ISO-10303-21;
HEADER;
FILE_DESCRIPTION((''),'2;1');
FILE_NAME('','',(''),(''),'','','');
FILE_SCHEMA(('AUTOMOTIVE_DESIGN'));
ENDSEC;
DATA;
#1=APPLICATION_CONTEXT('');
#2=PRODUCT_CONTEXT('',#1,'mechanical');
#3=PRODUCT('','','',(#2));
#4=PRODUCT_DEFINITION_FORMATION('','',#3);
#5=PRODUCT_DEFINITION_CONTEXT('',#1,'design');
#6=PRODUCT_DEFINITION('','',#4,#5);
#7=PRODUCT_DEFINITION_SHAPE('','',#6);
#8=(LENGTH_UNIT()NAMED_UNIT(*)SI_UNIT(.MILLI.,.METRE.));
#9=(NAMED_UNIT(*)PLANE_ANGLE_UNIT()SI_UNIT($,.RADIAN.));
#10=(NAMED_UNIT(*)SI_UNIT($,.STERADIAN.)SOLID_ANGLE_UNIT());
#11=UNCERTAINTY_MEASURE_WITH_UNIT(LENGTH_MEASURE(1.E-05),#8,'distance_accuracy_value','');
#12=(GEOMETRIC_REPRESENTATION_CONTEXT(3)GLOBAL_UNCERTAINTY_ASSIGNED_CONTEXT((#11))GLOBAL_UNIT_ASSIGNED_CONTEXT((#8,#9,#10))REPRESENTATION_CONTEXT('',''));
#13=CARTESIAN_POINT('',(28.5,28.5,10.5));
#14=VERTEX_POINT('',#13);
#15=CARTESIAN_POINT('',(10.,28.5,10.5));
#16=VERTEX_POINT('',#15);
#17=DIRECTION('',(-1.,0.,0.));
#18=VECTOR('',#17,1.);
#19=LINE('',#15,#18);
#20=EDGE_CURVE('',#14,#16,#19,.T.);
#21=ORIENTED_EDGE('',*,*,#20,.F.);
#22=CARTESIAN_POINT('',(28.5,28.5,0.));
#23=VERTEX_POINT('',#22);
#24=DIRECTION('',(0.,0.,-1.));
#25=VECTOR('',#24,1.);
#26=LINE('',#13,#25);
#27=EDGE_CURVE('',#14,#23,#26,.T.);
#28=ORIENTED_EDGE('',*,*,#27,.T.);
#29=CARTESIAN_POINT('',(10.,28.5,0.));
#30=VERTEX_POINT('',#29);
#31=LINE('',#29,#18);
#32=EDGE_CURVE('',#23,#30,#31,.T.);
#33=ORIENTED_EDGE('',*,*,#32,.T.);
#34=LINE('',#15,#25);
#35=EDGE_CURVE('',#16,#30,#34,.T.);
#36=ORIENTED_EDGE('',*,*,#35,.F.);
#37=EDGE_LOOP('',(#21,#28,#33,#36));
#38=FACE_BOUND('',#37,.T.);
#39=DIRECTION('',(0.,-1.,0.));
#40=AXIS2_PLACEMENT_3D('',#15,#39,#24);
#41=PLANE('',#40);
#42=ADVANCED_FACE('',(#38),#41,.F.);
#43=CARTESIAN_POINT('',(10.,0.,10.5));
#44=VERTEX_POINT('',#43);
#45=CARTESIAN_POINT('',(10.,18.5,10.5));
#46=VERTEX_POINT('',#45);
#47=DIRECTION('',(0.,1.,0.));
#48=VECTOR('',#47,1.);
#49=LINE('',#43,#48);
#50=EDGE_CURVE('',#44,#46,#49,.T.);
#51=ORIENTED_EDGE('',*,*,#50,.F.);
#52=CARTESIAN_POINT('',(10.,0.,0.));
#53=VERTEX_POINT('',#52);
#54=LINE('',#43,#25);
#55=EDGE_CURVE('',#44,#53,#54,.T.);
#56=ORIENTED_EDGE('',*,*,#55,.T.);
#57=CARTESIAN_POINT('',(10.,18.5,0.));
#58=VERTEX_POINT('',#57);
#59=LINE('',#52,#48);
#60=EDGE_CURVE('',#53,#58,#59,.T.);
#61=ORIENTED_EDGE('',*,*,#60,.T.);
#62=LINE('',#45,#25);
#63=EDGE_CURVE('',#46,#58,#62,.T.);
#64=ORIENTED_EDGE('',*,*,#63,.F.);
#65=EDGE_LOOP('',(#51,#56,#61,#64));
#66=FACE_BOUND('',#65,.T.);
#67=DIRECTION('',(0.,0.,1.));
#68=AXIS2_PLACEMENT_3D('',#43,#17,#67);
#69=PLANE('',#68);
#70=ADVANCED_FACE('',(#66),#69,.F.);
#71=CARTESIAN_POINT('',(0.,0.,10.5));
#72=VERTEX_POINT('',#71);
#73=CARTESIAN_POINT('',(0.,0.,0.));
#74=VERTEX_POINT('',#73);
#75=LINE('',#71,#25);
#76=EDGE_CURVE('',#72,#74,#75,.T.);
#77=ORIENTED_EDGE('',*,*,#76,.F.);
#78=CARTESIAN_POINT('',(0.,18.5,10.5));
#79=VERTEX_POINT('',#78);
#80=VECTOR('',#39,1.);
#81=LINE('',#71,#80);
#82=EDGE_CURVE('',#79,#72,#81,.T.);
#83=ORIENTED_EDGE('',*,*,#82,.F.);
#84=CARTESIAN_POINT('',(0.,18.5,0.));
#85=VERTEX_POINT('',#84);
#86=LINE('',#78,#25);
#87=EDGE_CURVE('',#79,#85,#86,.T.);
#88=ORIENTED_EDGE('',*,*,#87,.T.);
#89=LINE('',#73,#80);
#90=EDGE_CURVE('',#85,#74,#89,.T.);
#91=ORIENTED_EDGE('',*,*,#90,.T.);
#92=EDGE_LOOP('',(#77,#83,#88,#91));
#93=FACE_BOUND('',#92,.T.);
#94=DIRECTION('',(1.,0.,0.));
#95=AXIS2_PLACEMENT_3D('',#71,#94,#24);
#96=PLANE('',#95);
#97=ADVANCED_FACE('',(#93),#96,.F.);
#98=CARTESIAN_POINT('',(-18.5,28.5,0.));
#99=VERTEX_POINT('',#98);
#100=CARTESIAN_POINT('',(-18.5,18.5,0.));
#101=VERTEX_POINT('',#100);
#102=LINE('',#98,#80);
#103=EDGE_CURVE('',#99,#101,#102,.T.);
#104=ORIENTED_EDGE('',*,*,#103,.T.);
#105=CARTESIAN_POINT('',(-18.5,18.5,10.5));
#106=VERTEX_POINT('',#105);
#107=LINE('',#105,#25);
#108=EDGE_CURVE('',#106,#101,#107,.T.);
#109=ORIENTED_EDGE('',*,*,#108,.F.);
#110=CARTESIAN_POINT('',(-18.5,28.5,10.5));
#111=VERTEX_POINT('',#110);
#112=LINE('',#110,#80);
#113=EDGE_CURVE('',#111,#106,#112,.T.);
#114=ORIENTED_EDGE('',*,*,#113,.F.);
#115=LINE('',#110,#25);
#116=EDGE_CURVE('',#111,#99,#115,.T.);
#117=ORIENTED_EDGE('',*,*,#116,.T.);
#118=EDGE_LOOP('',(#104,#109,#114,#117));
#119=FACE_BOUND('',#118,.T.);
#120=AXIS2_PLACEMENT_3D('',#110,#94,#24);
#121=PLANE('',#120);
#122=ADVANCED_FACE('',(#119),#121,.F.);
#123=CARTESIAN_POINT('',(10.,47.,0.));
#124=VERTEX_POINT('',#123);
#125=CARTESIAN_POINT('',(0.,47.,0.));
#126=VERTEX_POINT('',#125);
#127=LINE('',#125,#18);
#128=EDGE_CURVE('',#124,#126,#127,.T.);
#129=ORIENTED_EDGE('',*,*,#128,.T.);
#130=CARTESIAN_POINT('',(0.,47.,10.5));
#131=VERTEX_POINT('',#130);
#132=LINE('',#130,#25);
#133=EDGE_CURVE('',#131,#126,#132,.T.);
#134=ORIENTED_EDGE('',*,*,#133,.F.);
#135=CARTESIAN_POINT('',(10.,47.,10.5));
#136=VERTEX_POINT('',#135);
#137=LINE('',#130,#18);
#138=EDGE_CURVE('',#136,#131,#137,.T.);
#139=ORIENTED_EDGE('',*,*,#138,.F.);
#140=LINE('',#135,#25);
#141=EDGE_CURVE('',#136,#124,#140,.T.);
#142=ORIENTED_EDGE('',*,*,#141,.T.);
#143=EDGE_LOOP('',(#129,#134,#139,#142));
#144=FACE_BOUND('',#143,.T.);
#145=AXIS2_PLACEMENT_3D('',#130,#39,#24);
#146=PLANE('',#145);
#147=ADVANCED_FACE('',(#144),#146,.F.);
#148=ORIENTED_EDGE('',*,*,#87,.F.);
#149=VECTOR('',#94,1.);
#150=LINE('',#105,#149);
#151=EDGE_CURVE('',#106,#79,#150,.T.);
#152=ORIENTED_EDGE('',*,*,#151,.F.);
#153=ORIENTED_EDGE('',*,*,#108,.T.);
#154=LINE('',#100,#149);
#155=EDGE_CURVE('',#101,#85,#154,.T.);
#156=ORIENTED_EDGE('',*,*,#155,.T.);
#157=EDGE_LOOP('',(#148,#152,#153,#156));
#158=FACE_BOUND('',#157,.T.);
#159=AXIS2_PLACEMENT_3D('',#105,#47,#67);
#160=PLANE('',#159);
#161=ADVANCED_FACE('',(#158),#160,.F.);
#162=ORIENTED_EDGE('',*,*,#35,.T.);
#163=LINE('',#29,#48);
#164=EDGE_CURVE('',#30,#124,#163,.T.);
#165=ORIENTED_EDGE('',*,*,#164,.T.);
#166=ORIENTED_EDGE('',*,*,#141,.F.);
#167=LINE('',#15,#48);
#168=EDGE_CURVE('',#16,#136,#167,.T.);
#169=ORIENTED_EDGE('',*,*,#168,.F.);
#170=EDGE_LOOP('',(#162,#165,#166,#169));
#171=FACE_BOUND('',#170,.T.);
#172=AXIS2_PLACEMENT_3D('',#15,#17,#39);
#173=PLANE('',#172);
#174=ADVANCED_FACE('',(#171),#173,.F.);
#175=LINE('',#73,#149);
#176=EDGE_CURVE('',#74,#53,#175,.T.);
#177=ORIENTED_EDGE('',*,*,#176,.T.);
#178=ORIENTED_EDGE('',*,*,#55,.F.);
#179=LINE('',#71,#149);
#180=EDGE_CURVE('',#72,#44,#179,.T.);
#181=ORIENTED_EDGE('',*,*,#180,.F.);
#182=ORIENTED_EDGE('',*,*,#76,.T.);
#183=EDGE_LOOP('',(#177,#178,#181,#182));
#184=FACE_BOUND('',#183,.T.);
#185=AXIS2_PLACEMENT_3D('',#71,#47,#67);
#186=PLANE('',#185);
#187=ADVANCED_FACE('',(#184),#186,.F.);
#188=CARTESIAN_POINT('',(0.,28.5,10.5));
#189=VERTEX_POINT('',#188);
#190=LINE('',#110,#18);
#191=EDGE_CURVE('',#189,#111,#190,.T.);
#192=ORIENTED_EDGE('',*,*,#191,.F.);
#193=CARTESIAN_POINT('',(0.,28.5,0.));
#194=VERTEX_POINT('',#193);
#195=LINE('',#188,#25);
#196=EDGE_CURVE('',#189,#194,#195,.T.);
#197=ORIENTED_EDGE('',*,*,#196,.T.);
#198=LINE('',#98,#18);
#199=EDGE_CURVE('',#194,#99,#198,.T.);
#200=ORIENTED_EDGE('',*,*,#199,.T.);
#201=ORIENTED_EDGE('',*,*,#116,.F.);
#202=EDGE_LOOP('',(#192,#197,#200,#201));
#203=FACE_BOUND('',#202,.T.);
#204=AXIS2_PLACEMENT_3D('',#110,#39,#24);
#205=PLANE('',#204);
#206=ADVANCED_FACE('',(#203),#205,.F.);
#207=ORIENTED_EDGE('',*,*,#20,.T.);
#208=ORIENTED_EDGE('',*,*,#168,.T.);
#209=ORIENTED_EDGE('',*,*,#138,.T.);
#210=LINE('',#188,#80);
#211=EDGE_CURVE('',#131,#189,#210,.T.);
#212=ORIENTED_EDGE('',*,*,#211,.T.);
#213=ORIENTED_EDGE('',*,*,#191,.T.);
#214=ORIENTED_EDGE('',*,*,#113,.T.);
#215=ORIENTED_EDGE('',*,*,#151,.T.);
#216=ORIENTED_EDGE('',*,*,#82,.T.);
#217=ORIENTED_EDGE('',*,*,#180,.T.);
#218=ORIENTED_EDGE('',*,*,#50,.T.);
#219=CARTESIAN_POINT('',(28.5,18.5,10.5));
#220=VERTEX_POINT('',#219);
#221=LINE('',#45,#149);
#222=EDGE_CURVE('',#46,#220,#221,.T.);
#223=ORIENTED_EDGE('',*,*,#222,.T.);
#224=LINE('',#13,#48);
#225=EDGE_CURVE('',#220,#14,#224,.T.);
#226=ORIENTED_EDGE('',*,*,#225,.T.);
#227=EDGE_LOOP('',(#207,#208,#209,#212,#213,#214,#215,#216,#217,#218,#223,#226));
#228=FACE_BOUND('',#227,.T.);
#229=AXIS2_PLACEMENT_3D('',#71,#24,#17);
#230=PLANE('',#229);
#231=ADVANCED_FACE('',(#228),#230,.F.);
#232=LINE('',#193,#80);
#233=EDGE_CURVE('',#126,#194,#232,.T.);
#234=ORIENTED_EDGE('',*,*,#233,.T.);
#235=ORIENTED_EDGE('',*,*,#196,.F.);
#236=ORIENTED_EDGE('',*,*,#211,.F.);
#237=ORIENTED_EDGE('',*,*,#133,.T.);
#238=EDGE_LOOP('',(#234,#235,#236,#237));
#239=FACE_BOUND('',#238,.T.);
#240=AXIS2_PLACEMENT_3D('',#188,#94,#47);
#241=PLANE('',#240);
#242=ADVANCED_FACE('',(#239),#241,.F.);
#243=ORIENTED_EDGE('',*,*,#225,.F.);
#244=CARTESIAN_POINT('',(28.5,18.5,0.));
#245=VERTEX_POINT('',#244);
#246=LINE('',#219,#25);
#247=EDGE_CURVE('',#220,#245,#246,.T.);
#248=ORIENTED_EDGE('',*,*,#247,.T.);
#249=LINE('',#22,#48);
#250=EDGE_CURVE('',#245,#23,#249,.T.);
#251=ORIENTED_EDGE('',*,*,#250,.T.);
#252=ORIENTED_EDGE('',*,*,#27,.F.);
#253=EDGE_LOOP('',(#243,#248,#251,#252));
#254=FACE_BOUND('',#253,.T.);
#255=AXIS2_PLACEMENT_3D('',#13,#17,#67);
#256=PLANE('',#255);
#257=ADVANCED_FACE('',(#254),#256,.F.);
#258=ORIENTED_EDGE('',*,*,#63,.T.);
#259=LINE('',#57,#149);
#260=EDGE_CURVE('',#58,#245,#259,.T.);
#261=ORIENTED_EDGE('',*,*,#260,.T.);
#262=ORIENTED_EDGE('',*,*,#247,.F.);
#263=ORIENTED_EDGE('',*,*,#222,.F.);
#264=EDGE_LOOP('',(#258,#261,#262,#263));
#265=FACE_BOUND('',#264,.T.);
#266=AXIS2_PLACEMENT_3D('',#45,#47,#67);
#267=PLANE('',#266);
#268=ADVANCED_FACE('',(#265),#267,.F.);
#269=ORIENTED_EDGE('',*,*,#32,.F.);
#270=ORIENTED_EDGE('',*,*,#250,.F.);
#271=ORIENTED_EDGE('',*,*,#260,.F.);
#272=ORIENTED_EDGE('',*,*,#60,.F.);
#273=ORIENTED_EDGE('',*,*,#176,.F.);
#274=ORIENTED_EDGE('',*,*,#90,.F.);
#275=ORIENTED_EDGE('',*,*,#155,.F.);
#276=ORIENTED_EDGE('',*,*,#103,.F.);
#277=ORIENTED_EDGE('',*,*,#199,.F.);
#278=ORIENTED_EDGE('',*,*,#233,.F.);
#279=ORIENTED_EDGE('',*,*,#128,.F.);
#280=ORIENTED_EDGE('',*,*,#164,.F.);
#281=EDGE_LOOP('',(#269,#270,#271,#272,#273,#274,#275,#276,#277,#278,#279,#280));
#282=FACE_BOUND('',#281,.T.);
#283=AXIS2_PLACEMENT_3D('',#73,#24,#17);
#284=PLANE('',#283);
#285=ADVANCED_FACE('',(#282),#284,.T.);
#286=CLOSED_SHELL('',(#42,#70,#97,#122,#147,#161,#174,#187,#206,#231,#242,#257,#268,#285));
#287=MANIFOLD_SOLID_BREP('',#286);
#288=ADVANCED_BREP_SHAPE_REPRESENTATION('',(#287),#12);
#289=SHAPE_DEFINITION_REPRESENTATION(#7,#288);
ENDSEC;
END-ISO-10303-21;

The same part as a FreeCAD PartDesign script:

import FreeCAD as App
import Part
import Sketcher
Q = App.Units.Quantity


def add_polygon(sketch, points):
    """Adds a closed chain of lines whose ends are joined by coincident constraints."""
    first, n = sketch.GeometryCount, len(points)
    for a, b in zip(points, points[1:] + points[:1]):
        sketch.addGeometry(Part.LineSegment(App.Vector(*a, 0), App.Vector(*b, 0)), False)
    for i in range(n):
        sketch.addConstraint(Sketcher.Constraint("Coincident", first + i, 2, first + (i + 1) % n, 1))

doc = App.newDocument("Part")
body = doc.addObject("PartDesign::Body", "Body")

sketch1 = doc.addObject("Sketcher::SketchObject", "Sketch")
body.addObject(sketch1)
sketch1.AttachmentSupport = (doc.XY_Plane, [""])
sketch1.MapMode = "FlatFace"
add_polygon(sketch1, [(0, 47), (0, 28), (-18, 28), (-18, 18), (0, 18), (0, 0), (10, 0), (10, 18), (28, 18), (28, 28), (10, 28), (10, 47)])
sketch1.addConstraint([
    Sketcher.Constraint("Vertical", 0),
    Sketcher.Constraint("Horizontal", 1),
    Sketcher.Constraint("Vertical", 2),
    Sketcher.Constraint("Horizontal", 3),
    Sketcher.Constraint("Vertical", 4),
    Sketcher.Constraint("Horizontal", 5),
    Sketcher.Constraint("Vertical", 6),
    Sketcher.Constraint("Horizontal", 7),
    Sketcher.Constraint("Vertical", 8),
    Sketcher.Constraint("Horizontal", 9),
    Sketcher.Constraint("Vertical", 10),
    Sketcher.Constraint("Horizontal", 11),
    Sketcher.Constraint("Coincident", 4, 2, -1, 1),
    Sketcher.Constraint("PointOnObject", 0, 2, -2),
    Sketcher.Constraint("Horizontal", 3, 2, 6, 2),
    Sketcher.Constraint("Horizontal", 1, 2, 8, 2),
    Sketcher.Constraint("Vertical", 6, 2, 9, 2),
    Sketcher.Constraint("Equal", 3, 7),
    Sketcher.Constraint("Equal", 9, 0),
    Sketcher.Constraint("Equal", 11, 2),
    Sketcher.Constraint("Equal", 0, 4),
    Sketcher.Constraint("DistanceX", 5, 1, 5, 2, Q("10 mm")),
    Sketcher.Constraint("DistanceX", 1, 2, 1, 1, Q("18.5 mm")),
])
pad1 = doc.addObject("PartDesign::Pad", "Pad")
body.addObject(pad1)
pad1.Profile = sketch1
pad1.Length = 10.5

doc.recompute()
